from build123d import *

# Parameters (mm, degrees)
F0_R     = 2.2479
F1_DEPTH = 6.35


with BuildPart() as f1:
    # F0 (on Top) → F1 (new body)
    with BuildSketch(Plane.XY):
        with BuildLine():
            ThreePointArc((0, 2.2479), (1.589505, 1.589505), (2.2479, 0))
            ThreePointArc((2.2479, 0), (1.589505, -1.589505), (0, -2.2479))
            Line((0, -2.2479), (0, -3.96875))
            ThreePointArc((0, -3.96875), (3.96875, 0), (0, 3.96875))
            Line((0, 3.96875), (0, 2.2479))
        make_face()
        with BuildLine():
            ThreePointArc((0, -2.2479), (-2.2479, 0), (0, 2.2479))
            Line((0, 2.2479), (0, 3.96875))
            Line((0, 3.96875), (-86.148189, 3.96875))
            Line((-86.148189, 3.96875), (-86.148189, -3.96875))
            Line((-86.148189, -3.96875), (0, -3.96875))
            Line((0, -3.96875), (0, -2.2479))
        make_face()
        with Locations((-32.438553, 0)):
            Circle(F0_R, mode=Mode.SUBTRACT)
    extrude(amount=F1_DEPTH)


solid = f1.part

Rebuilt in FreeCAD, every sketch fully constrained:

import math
import FreeCAD as App
import Part
import Sketcher
Q = App.Units.Quantity

doc = App.newDocument("Part")
body = doc.addObject("PartDesign::Body", "Body")

# Sketch on XY plane
sketch1 = doc.addObject("Sketcher::SketchObject", "Sketch")
body.addObject(sketch1)
sketch1.AttachmentSupport = (doc.XY_Plane, [""])
sketch1.MapMode = "FlatFace"
sketch1.addGeometry([
    Part.ArcOfCircle(Part.Circle(App.Vector(0, 0, 0), App.Vector(0, 0, 1), 3.96875), math.radians(-90), math.radians(90)),  # 0
    Part.LineSegment(App.Vector(0, 3.96875, 0), App.Vector(-86.148189, 3.96875, 0)),  # 1
    Part.LineSegment(App.Vector(-86.148189, 3.96875, 0), App.Vector(-86.148189, -3.96875, 0)),  # 2
    Part.LineSegment(App.Vector(-86.148189, -3.96875, 0), App.Vector(0, -3.96875, 0)),  # 3
    Part.Circle(App.Vector(-32.438553, 0, 0), App.Vector(0, 0, 1), 2.2479),  # 4
    Part.ArcOfCircle(Part.Circle(App.Vector(-0.000001, -0.000001, 0), App.Vector(0, 0, 1), 2.247901), math.radians(0.000029), math.radians(89.999971)),  # 5
    Part.ArcOfCircle(Part.Circle(App.Vector(-0.000001, 0.000001, 0), App.Vector(0, 0, 1), 2.247901), math.radians(-89.999971), math.radians(-0.000029)),  # 6
    Part.ArcOfCircle(Part.Circle(App.Vector(0, 0, 0), App.Vector(0, 0, 1), 2.2479), math.radians(90), math.radians(270)),  # 7
], False)
sketch1.addConstraint([
    Sketcher.Constraint("Tangent", 0, 2, 1, 1),
    Sketcher.Constraint("Coincident", 1, 2, 2, 1),
    Sketcher.Constraint("Coincident", 2, 2, 3, 1),
    Sketcher.Constraint("Tangent", 3, 2, 0, 1),
    Sketcher.Constraint("Tangent", 5, 1, 6, 2),
    Sketcher.Constraint("Tangent", 6, 1, 7, 2),
    Sketcher.Constraint("Tangent", 7, 1, 5, 2),
    Sketcher.Constraint("Horizontal", 1),
    Sketcher.Constraint("Vertical", 2),
    Sketcher.Constraint("Horizontal", 3),
    Sketcher.Constraint("Coincident", 0, 3, -1, 1),
    Sketcher.Constraint("Coincident", 5, 3, -1, 1),
    Sketcher.Constraint("Equal", 4, 5),
    Sketcher.Constraint("PointOnObject", 4, 3, -1),
    Sketcher.Constraint("PointOnObject", 5, 1, -1),
    Sketcher.Constraint("PointOnObject", 6, 1, -2),
    Sketcher.Constraint("PointOnObject", 7, 1, -2),
    Sketcher.Constraint("Diameter", 4, Q("0.177 in")),
    Sketcher.Constraint("Radius", 0, Q("0.15625 in")),
    Sketcher.Constraint("DistanceX", 1, 2, 1, 1, Q("86.148189 mm")),
    Sketcher.Constraint("DistanceX", 4, 3, 5, 3, Q("32.438552 mm")),
])
pad1 = doc.addObject("PartDesign::Pad", "Pad")
body.addObject(pad1)
pad1.Profile = sketch1
pad1.Length = Q("0.25 in")

doc.recompute()
